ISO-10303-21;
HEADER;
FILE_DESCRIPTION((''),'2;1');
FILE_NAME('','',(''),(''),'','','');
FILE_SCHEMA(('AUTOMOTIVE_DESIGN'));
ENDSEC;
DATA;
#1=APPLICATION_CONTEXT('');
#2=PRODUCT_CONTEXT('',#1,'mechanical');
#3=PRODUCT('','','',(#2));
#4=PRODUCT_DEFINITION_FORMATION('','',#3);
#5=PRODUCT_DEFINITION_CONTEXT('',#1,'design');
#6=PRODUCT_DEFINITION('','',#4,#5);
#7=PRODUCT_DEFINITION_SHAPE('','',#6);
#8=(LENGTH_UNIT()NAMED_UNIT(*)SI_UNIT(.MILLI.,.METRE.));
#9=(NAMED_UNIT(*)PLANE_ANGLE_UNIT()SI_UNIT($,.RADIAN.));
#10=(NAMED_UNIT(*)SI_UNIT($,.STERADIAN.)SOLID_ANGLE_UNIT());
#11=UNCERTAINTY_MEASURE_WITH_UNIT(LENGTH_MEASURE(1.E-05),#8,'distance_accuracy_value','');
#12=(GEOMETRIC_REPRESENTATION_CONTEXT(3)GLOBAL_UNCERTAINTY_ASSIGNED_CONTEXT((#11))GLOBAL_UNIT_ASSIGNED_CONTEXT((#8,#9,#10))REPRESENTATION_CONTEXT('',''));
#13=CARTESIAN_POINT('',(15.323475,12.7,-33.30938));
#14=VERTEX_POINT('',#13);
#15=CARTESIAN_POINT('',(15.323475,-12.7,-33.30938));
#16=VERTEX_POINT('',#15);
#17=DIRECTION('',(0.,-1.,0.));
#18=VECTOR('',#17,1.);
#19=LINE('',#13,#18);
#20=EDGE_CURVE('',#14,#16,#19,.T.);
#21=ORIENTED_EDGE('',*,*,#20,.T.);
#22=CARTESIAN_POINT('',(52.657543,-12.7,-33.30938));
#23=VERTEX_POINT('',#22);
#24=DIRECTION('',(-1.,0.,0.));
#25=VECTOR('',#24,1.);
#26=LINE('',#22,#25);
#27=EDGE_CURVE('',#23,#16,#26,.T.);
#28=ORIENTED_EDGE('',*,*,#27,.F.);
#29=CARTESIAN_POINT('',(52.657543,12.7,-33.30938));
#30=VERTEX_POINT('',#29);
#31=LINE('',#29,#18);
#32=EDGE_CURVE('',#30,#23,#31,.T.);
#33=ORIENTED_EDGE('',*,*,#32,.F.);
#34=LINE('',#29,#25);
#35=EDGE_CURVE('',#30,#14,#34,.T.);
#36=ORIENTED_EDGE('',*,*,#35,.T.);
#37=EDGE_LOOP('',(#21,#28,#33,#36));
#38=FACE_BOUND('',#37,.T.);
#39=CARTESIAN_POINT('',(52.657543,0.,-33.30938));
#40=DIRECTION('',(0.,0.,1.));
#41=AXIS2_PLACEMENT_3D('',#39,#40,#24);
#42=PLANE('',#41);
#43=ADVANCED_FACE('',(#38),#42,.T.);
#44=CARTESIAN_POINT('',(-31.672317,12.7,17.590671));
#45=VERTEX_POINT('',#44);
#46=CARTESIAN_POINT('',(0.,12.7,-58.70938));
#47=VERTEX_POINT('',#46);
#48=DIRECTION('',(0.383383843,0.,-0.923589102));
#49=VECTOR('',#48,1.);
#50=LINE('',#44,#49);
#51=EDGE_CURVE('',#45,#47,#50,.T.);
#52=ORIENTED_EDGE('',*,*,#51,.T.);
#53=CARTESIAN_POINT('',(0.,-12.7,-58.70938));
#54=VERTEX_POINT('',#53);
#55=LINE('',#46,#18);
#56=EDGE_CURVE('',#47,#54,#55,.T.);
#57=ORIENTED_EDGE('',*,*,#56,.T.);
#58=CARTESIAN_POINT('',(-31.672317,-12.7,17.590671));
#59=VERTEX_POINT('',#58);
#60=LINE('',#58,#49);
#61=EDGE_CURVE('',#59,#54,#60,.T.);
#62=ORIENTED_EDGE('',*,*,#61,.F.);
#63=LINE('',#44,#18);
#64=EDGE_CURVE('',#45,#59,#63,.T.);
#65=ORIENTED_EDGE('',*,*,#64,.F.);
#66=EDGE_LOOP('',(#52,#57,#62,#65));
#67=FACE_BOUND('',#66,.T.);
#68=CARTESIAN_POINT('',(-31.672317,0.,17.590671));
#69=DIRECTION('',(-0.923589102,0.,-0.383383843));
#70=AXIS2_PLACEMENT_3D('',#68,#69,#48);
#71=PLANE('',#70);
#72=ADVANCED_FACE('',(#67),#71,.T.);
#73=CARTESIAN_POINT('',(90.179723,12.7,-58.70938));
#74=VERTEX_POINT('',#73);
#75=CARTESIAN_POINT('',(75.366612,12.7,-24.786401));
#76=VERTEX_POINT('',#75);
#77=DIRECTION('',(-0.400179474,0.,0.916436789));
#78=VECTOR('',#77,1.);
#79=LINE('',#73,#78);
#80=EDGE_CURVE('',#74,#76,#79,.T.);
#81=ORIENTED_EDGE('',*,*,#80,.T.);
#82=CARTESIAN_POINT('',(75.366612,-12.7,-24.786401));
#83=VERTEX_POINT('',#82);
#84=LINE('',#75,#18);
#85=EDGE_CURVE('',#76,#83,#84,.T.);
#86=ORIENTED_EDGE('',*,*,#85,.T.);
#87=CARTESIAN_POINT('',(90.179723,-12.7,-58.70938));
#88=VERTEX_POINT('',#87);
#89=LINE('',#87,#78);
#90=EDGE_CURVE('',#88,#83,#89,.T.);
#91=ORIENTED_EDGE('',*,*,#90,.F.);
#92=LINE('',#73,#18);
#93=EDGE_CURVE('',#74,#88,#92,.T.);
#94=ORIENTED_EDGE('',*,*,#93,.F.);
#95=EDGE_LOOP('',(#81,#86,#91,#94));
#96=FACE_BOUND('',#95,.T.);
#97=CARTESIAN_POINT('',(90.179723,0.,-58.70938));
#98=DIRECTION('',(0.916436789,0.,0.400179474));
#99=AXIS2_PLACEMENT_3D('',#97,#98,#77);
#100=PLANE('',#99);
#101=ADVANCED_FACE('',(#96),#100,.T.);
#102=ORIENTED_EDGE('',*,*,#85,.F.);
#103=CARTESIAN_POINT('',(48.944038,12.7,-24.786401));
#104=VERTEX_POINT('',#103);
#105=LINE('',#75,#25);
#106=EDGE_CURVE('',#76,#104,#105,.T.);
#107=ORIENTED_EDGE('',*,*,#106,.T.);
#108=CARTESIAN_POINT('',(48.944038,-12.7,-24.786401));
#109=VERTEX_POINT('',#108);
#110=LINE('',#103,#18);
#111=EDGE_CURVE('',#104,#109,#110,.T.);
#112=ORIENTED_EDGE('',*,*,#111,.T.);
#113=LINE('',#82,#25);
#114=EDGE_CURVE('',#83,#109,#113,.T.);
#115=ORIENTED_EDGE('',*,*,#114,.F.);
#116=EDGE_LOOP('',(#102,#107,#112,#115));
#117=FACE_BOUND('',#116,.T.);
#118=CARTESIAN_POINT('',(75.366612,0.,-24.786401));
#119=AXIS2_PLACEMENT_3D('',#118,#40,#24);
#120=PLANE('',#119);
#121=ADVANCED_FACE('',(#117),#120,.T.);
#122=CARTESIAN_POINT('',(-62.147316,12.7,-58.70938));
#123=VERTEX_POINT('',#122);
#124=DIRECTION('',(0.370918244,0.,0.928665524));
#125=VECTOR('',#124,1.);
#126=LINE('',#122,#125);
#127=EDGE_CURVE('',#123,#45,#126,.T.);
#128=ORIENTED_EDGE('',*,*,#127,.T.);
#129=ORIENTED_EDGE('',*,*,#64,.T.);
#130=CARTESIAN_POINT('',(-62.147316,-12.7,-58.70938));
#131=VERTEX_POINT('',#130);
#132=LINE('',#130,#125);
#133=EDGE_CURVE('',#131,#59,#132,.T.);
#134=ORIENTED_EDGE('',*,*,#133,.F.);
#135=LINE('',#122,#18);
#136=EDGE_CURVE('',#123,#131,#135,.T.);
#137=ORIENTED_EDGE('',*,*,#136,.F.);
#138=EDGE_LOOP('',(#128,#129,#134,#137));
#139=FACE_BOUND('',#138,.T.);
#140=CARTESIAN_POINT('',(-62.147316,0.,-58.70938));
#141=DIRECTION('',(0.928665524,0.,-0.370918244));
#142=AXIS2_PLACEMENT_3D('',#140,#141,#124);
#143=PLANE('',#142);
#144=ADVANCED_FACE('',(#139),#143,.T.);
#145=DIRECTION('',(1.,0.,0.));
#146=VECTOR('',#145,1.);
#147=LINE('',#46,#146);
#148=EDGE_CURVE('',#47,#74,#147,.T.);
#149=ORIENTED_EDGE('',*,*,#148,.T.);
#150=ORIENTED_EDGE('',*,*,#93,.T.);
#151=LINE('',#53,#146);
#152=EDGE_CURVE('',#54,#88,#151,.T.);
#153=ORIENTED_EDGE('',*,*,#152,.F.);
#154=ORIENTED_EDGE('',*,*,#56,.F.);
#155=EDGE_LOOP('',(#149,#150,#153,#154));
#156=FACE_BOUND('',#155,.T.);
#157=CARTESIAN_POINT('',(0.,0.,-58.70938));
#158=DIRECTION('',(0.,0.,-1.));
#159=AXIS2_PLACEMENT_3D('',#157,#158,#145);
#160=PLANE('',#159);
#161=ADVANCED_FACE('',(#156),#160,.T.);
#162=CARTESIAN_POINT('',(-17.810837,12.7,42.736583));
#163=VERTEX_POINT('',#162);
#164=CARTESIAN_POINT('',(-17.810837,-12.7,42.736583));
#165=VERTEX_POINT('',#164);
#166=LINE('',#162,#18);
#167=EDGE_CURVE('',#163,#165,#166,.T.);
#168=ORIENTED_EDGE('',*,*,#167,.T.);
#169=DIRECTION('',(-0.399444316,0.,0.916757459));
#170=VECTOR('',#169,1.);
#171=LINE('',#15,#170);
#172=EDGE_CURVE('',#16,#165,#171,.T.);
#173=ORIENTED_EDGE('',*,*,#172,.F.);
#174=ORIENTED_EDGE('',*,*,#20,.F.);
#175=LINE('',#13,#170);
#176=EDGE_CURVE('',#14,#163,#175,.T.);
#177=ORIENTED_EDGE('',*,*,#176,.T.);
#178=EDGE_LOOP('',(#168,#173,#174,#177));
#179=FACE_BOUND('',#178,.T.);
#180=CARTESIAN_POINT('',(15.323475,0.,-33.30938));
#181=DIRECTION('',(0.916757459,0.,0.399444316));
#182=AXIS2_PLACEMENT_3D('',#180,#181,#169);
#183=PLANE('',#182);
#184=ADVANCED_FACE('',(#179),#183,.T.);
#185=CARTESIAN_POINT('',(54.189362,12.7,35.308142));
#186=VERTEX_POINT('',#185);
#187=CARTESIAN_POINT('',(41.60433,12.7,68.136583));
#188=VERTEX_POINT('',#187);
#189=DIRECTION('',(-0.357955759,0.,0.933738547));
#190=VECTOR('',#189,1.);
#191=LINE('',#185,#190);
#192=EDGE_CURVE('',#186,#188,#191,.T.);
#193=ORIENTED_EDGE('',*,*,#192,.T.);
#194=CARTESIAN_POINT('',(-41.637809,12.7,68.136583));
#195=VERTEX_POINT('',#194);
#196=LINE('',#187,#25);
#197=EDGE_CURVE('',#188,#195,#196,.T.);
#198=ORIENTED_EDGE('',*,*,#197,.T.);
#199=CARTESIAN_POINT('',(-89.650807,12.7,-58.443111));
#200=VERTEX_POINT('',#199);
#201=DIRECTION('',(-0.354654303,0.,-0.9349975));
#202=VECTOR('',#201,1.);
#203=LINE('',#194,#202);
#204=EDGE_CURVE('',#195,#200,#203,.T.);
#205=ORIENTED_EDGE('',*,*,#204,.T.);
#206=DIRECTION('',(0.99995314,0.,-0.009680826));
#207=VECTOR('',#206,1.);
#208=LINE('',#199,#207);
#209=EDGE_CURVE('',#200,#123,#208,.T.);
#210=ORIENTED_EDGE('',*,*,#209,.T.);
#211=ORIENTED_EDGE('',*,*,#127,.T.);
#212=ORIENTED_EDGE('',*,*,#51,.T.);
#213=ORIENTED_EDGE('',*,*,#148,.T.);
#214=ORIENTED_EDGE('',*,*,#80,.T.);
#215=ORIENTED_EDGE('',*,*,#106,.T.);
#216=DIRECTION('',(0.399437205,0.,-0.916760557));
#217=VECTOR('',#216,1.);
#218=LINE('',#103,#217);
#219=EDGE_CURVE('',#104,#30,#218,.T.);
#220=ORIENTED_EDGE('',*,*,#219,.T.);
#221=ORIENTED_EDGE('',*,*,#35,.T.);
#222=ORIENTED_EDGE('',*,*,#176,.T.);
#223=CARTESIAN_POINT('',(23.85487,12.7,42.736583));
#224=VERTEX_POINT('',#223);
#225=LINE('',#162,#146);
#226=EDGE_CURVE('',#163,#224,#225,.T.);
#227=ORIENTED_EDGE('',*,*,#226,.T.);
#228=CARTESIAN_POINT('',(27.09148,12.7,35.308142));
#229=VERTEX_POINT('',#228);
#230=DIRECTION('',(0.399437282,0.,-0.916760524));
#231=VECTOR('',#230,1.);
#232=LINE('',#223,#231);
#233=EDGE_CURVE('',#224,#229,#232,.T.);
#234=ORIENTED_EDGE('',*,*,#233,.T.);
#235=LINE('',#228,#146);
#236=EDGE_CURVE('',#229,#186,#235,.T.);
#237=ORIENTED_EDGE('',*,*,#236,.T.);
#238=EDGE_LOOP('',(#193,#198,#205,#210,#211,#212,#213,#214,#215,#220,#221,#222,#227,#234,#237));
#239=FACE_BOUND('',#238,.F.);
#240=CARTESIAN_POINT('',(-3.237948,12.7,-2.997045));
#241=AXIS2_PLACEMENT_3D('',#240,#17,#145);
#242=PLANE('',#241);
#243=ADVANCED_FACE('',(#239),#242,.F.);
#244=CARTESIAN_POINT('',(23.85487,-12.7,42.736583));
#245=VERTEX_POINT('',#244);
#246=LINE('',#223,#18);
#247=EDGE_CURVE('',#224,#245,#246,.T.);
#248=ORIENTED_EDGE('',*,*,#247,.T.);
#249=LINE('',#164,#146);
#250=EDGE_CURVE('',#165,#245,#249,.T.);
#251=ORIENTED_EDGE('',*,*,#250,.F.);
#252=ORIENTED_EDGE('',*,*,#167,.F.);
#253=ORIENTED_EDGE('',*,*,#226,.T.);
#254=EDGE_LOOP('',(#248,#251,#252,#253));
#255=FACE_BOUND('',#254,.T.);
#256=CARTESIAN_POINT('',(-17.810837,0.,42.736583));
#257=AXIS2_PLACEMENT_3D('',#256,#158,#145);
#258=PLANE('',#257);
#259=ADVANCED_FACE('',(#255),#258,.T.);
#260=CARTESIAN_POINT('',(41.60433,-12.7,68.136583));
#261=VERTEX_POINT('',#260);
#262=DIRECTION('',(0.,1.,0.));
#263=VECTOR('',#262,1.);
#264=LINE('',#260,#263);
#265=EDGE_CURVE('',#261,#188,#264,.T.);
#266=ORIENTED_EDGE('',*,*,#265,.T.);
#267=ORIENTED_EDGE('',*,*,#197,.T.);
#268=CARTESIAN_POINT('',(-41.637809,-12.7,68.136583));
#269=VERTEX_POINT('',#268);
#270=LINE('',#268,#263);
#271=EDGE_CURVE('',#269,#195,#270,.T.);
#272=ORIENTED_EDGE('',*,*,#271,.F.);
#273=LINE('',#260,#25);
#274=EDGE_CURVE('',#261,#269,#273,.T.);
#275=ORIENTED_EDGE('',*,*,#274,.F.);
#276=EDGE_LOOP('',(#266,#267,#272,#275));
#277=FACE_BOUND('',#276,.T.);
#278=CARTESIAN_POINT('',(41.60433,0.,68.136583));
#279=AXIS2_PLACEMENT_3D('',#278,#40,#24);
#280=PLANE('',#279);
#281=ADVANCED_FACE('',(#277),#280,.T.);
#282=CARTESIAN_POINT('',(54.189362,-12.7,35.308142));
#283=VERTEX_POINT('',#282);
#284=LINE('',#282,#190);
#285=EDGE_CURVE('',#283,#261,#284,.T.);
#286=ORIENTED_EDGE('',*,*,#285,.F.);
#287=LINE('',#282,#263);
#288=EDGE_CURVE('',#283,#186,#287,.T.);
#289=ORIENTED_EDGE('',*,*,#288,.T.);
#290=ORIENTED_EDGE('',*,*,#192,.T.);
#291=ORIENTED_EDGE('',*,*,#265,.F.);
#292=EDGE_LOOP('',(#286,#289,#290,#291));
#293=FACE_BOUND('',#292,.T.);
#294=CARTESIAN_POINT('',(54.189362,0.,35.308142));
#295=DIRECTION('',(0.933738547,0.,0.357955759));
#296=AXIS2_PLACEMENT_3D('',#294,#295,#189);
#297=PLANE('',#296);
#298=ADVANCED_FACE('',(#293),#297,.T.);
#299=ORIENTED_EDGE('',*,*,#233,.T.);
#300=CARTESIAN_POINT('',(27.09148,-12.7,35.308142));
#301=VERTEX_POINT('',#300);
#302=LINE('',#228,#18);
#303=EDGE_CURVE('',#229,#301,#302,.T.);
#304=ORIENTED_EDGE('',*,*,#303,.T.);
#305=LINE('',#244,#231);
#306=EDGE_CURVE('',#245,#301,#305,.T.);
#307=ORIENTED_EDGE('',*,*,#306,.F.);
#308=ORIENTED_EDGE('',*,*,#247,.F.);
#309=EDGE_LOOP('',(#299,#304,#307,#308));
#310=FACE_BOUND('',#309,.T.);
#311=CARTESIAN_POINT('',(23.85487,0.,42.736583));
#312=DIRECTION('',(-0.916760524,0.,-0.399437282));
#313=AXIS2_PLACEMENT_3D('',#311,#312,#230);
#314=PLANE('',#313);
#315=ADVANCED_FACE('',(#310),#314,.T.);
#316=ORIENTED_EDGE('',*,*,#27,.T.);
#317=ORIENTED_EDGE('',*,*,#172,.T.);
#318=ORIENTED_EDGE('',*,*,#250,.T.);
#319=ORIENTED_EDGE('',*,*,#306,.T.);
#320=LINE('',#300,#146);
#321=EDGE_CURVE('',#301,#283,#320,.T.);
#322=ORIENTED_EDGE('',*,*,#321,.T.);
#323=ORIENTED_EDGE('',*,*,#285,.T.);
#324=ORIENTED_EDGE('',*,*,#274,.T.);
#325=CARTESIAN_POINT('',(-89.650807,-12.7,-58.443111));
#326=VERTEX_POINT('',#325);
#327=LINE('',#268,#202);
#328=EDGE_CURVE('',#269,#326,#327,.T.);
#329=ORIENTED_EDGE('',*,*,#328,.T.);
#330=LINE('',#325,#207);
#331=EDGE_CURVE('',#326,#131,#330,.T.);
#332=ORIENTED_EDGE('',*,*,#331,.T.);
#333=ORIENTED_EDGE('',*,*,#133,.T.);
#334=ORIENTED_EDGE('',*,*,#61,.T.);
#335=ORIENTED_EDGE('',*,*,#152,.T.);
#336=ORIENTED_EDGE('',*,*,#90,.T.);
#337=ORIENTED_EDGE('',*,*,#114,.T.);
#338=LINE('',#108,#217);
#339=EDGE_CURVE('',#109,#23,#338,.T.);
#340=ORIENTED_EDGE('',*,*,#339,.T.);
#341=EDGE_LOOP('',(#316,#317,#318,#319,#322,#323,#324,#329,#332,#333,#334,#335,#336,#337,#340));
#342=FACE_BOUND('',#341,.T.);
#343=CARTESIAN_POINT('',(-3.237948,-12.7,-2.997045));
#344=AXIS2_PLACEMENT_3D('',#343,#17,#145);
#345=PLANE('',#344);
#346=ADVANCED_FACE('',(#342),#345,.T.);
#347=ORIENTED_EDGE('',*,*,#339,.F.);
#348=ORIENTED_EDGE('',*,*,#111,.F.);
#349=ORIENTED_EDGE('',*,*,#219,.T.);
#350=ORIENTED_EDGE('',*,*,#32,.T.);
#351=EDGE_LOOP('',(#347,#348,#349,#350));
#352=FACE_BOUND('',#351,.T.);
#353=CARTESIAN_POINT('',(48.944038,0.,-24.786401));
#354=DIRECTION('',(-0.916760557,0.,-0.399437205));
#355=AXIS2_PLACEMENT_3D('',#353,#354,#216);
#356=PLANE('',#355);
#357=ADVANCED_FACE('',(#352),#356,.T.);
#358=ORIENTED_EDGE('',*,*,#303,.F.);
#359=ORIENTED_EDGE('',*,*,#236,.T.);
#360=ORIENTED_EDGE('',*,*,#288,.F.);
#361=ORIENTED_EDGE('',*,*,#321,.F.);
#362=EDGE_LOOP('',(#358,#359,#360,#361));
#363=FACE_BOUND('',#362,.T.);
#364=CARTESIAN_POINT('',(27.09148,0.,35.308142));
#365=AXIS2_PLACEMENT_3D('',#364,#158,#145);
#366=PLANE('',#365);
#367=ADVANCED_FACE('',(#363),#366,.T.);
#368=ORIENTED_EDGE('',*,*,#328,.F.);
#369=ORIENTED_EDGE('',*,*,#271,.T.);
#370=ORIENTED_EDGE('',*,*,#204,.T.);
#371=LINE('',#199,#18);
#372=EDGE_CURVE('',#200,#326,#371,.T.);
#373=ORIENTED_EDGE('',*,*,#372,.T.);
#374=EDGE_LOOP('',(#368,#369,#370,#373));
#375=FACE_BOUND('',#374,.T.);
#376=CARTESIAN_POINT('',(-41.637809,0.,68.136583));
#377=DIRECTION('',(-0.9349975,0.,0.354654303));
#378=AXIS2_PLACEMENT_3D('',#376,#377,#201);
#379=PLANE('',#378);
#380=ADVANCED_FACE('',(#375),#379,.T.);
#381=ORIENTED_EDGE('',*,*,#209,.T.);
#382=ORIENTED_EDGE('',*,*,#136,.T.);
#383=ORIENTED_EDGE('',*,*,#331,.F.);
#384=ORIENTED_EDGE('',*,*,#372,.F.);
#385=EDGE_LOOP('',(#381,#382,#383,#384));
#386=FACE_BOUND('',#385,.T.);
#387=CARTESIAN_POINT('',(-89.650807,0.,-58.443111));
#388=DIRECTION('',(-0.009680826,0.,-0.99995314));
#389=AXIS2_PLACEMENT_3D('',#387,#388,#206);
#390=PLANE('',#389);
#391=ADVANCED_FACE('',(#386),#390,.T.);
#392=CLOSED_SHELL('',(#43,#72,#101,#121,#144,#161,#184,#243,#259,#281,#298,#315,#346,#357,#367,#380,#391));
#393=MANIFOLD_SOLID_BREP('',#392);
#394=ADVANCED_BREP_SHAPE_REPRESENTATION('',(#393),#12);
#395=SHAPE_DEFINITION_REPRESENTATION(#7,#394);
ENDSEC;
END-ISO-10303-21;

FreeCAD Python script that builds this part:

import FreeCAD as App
import Part
import Sketcher
from FreeCAD import Vector
Q = App.Units.Quantity

doc = App.newDocument("Part")
body = doc.addObject("PartDesign::Body", "Body")

# Sketch on XZ plane
sketch1 = doc.addObject("Sketcher::SketchObject", "Sketch")
body.addObject(sketch1)
sketch1.AttachmentSupport = (doc.XZ_Plane, [""])
sketch1.MapMode = "FlatFace"
sketch1.addGeometry([
    Part.LineSegment(Vector(-42, 68, 0), Vector(-90, -58, 0)),  # 0
    Part.LineSegment(Vector(-90, -58, 0), Vector(-62, -59, 0)),  # 1
    Part.LineSegment(Vector(-62, -59, 0), Vector(-32, 18, 0)),  # 2
    Part.LineSegment(Vector(-32, 18, 0), Vector(0, -59, 0)),  # 3
    Part.LineSegment(Vector(0, -59, 0), Vector(90, -59, 0)),  # 4
    Part.LineSegment(Vector(90, -59, 0), Vector(75, -25, 0)),  # 5
    Part.LineSegment(Vector(75, -25, 0), Vector(49, -25, 0)),  # 6
    Part.LineSegment(Vector(49, -25, 0), Vector(53, -33, 0)),  # 7
    Part.LineSegment(Vector(53, -33, 0), Vector(15, -33, 0)),  # 8
    Part.LineSegment(Vector(15, -33, 0), Vector(-18, 43, 0)),  # 9
    Part.LineSegment(Vector(-18, 43, 0), Vector(24, 43, 0)),  # 10
    Part.LineSegment(Vector(24, 43, 0), Vector(27, 35, 0)),  # 11
    Part.LineSegment(Vector(27, 35, 0), Vector(54, 35, 0)),  # 12
    Part.LineSegment(Vector(54, 35, 0), Vector(42, 68, 0)),  # 13
    Part.LineSegment(Vector(42, 68, 0), Vector(-42, 68, 0)),  # 14
], False)
sketch1.addConstraint([
    Sketcher.Constraint("Coincident", 0, 2, 1, 1),
    Sketcher.Constraint("Coincident", 1, 2, 2, 1),
    Sketcher.Constraint("Coincident", 2, 2, 3, 1),
    Sketcher.Constraint("Coincident", 3, 2, 4, 1),
    Sketcher.Constraint("Coincident", 4, 2, 5, 1),
    Sketcher.Constraint("Coincident", 5, 2, 6, 1),
    Sketcher.Constraint("Coincident", 6, 2, 7, 1),
    Sketcher.Constraint("Coincident", 7, 2, 8, 1),
    Sketcher.Constraint("Coincident", 8, 2, 9, 1),
    Sketcher.Constraint("Coincident", 9, 2, 10, 1),
    Sketcher.Constraint("Coincident", 10, 2, 11, 1),
    Sketcher.Constraint("Coincident", 11, 2, 12, 1),
    Sketcher.Constraint("Coincident", 12, 2, 13, 1),
    Sketcher.Constraint("Coincident", 13, 2, 14, 1),
    Sketcher.Constraint("Coincident", 14, 2, 0, 1),
    Sketcher.Constraint("Horizontal", 4),
    Sketcher.Constraint("Horizontal", 6),
    Sketcher.Constraint("Horizontal", 8),
    Sketcher.Constraint("Horizontal", 10),
    Sketcher.Constraint("Horizontal", 12),
    Sketcher.Constraint("Horizontal", 14),
    Sketcher.Constraint("PointOnObject", 3, 2, -2),
    Sketcher.Constraint("Parallel", 7, 11),
    Sketcher.Constraint("Horizontal", 1, 2, 3, 2),
    Sketcher.Constraint("DistanceY", 4, 2, 7, 2, Q("1 in")),
    Sketcher.Constraint("DistanceY", 10, 2, 13, 2, Q("1 in")),
    Sketcher.Constraint("DistanceX", 14, 2, 14, 1, 83.242139),
    Sketcher.Constraint("DistanceY", 5, 2, -1, 1, 24.786401),
    Sketcher.Constraint("DistanceX", 1, 2, 2, 2, 30.474999),
    Sketcher.Constraint("Distance", 1, 27.50478),
    Sketcher.Constraint("Distance", 2, 82.16096),
    Sketcher.Constraint("Distance", 3, 82.61255),
    Sketcher.Constraint("Distance", 5, 37.016169),
    Sketcher.Constraint("DistanceX", 4, 1, 4, 2, 90.179723),
    Sketcher.Constraint("DistanceX", 6, 2, 6, 1, 26.422574),
    Sketcher.Constraint("DistanceX", 8, 2, 8, 1, 37.334068),
    Sketcher.Constraint("DistanceX", 10, 1, 10, 2, 41.665707),
    Sketcher.Constraint("DistanceX", 12, 1, 12, 2, 27.097882),
    Sketcher.Constraint("DistanceY", 0, 2, -1, 1, 58.443111),
    Sketcher.Constraint("DistanceY", 1, 2, -1, 1, 58.70938),
    Sketcher.Constraint("DistanceX", -1, 1, 10, 2, 23.85487),
    Sketcher.Constraint("DistanceX", -1, 1, 11, 2, 27.09148),
    Sketcher.Constraint("DistanceY", -1, 1, 11, 2, 35.308142),
    Sketcher.Constraint("DistanceX", -1, 1, 13, 2, 41.60433),
    Sketcher.Constraint("DistanceX", 7, 2, 5, 2, 22.709069),
])
pad1 = doc.addObject("PartDesign::Pad", "Pad")
body.addObject(pad1)
pad1.Profile = sketch1
pad1.Length = Q("1 in")
pad1.Midplane = True

doc.recompute()
